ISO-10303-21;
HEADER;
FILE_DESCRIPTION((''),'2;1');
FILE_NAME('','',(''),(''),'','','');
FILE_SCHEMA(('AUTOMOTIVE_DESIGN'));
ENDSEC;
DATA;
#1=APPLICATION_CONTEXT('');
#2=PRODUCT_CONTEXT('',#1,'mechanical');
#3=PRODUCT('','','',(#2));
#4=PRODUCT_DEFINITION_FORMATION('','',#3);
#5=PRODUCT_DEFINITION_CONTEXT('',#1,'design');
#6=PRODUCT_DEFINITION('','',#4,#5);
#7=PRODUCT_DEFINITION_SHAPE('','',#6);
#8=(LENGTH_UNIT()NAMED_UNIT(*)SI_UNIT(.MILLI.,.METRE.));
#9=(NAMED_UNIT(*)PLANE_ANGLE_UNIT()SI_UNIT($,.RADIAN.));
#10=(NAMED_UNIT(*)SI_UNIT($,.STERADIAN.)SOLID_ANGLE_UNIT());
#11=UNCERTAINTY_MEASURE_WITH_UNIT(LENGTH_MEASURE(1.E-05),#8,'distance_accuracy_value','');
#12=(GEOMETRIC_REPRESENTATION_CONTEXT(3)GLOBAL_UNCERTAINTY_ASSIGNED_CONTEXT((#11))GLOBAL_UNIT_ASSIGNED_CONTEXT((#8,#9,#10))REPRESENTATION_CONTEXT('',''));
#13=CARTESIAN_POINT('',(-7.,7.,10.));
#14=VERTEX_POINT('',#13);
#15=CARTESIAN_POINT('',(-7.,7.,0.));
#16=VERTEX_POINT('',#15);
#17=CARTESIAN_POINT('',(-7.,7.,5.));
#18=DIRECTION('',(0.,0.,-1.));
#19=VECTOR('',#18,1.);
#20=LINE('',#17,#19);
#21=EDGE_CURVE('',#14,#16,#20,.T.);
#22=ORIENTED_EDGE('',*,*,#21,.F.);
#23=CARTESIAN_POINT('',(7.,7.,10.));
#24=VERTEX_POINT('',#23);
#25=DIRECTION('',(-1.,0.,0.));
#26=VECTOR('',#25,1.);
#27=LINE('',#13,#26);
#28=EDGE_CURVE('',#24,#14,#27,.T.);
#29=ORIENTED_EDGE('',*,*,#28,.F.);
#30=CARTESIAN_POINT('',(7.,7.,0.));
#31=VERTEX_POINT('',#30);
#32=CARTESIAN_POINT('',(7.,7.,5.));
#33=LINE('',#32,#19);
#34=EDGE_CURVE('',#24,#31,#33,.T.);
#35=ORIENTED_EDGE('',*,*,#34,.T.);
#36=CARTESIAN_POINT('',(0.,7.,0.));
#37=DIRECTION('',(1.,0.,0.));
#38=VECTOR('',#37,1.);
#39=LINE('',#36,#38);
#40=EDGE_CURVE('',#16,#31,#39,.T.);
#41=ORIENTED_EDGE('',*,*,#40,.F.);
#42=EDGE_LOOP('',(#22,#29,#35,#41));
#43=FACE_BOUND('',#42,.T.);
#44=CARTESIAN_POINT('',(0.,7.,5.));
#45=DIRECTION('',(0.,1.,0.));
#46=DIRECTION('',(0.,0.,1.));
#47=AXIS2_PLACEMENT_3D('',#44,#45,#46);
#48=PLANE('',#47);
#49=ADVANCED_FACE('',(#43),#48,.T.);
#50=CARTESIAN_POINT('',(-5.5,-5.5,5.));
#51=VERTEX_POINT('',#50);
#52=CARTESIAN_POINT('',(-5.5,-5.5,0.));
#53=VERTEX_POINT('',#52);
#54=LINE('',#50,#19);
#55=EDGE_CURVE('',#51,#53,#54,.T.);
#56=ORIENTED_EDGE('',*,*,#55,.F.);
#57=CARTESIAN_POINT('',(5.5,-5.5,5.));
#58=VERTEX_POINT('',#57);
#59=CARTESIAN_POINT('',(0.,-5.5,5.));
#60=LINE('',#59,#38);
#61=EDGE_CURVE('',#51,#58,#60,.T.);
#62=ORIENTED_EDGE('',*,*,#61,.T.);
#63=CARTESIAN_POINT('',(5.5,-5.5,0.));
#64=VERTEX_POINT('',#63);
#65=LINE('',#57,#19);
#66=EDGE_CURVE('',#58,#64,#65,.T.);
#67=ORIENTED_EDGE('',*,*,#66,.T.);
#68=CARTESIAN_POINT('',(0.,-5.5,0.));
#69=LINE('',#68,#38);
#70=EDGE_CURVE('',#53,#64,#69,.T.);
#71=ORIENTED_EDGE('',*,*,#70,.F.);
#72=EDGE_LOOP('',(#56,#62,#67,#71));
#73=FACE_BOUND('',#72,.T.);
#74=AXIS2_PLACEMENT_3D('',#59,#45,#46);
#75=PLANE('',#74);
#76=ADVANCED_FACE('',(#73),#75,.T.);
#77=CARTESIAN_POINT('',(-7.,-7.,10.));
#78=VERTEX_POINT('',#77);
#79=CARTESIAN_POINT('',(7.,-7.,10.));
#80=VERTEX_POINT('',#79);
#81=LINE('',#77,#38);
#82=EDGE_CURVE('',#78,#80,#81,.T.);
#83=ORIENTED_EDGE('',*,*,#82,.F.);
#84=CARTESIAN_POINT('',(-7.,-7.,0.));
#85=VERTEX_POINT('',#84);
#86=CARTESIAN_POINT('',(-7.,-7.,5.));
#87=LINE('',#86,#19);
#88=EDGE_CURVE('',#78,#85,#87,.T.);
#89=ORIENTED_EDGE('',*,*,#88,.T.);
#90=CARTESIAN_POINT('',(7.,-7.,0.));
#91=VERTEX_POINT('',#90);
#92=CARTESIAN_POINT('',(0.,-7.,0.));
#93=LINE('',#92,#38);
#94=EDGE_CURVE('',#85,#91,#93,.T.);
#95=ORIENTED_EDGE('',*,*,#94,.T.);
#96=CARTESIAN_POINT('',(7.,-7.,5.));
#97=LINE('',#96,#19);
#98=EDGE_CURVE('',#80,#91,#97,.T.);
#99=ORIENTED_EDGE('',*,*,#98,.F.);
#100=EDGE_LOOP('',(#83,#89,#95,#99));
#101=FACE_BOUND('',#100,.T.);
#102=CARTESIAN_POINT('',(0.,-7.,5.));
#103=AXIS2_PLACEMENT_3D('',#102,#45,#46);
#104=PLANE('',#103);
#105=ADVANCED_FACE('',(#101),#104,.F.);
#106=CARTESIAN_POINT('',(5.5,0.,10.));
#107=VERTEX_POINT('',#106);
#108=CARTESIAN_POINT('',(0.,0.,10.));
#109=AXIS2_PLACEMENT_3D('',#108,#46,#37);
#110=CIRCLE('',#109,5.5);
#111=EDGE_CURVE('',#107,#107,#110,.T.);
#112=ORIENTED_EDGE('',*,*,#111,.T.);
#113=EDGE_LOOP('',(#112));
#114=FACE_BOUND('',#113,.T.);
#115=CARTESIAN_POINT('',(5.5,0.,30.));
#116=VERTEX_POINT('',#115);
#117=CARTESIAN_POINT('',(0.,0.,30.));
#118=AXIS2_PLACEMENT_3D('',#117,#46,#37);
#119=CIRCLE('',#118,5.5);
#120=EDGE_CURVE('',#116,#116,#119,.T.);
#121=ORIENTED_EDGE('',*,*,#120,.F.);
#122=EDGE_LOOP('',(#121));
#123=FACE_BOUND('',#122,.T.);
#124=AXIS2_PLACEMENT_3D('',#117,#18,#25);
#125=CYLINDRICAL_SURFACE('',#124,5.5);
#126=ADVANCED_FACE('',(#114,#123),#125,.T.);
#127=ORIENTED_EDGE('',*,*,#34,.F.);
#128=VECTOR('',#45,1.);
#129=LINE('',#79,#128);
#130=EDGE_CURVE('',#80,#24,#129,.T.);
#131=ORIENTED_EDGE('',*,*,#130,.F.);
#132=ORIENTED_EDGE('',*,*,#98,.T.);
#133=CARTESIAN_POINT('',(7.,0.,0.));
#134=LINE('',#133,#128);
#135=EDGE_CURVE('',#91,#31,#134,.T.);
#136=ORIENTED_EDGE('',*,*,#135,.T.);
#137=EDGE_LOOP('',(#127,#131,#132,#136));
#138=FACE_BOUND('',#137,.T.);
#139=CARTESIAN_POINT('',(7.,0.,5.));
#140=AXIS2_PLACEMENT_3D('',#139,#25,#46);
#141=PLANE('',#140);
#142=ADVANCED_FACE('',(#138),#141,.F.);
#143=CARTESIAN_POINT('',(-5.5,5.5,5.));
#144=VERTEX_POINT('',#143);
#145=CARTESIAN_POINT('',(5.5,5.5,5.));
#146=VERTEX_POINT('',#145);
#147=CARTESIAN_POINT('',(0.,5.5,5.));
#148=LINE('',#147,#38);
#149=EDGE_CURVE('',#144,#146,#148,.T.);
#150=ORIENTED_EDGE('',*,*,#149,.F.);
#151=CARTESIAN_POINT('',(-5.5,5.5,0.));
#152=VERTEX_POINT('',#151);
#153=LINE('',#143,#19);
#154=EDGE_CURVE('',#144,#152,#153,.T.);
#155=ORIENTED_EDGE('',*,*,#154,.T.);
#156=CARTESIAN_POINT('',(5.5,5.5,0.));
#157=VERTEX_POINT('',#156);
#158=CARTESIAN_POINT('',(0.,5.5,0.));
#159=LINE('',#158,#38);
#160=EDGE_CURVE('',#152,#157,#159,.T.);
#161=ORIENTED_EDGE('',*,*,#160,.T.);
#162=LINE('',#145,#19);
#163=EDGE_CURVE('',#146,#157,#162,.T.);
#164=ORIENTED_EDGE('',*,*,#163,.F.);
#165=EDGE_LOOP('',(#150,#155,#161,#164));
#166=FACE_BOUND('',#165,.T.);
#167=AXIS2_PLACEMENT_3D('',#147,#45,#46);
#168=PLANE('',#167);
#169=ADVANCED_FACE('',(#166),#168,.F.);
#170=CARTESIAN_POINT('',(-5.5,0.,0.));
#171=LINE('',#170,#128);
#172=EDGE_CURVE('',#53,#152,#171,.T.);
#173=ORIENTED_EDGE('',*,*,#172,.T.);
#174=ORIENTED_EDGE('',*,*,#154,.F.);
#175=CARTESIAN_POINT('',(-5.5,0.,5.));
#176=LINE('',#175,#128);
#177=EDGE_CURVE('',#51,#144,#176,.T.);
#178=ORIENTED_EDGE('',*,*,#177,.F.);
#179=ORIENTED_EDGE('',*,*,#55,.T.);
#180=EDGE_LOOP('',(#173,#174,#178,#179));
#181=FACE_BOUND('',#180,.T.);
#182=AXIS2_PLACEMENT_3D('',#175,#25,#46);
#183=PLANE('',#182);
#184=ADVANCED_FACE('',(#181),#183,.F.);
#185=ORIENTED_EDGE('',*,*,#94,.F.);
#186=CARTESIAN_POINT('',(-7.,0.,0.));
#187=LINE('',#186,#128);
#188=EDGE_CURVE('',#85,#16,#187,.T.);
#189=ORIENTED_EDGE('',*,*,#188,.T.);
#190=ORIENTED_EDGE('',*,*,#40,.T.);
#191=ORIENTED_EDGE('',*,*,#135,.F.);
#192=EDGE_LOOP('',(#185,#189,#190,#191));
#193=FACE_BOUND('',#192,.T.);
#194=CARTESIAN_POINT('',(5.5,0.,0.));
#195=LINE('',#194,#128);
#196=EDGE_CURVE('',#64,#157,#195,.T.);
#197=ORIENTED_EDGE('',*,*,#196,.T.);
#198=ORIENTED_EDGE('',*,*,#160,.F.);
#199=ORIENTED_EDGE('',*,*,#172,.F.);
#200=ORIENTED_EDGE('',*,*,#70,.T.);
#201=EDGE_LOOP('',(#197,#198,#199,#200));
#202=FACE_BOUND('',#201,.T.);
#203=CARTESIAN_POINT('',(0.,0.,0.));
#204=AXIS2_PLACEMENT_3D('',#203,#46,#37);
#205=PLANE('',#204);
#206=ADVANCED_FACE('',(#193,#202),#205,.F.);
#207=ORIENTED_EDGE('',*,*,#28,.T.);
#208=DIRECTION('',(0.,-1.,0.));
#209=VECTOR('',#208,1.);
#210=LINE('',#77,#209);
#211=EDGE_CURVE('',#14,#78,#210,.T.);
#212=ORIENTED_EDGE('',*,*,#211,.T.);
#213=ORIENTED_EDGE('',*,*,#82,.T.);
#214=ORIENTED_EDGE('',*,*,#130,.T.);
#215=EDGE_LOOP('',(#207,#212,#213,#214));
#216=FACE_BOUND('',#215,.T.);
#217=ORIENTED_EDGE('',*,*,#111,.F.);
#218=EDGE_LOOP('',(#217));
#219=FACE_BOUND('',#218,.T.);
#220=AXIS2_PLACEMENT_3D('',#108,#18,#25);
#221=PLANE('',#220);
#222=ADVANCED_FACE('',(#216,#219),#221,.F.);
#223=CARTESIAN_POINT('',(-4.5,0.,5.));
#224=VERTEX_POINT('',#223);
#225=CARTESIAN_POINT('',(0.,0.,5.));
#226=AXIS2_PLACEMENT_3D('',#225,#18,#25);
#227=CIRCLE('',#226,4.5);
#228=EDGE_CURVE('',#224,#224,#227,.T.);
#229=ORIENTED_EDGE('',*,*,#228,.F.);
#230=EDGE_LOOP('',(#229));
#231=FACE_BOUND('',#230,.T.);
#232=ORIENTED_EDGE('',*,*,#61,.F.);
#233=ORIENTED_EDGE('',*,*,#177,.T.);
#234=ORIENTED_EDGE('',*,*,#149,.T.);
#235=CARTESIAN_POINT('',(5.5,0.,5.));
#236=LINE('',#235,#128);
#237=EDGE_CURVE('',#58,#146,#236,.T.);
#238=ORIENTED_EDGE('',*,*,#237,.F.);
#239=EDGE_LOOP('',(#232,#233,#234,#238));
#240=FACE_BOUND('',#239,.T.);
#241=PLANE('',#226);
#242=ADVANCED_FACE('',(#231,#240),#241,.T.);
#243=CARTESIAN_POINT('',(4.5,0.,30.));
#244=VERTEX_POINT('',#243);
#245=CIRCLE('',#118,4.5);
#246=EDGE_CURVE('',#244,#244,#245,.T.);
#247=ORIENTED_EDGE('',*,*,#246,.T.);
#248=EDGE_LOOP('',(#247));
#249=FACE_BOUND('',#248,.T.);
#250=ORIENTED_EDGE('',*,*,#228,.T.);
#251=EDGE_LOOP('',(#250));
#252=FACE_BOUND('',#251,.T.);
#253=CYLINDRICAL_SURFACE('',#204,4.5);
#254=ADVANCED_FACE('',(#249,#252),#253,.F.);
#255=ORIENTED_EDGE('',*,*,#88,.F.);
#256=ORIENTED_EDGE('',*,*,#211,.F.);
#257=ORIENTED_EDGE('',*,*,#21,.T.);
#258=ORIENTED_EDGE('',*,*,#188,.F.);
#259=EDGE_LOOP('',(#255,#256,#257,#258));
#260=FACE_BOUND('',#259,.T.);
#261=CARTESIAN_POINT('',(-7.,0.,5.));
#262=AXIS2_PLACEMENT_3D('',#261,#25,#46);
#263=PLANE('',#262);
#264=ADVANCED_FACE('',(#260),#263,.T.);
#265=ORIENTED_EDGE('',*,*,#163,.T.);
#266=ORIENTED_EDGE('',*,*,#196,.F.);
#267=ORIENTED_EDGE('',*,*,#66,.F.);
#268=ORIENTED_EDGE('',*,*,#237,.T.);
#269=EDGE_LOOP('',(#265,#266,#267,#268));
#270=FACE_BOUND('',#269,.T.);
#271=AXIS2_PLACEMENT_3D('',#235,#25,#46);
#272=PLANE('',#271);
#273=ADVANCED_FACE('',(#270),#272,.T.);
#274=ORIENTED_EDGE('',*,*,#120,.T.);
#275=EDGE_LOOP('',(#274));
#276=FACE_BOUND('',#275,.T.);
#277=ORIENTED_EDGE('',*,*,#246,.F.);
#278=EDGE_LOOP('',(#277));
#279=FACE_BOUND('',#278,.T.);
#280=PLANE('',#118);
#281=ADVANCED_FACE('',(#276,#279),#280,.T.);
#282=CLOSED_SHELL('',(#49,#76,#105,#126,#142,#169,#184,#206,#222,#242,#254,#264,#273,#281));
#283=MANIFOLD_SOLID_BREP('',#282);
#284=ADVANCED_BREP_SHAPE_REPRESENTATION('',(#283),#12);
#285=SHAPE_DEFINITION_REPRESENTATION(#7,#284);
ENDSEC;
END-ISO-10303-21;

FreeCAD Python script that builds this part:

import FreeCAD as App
import Part
import Sketcher

V = App.Vector

doc = App.newDocument("Part")
params = doc.addObject("Spreadsheet::Sheet", "Params")
for row, (alias, value) in enumerate([
    ("sketch1_width", "14 mm"),
    ("sketch1_width2", "11 mm"),
    ("pad1_length", "5 mm"),
    ("sketch2_width", "14 mm"),
    ("pad2_length", "5 mm"),
    ("sketch3_diameter", "11 mm"),
    ("pad3_length", "20 mm"),
    ("sketch4_diameter", "9 mm"),
], start=1):
    params.set(f"A{row}", alias)
    params.set(f"B{row}", "=" + value)
    params.setAlias(f"B{row}", alias)

body = doc.addObject("PartDesign::Body", "Body")

# Sketch on XY plane
sketch1 = body.newObject("Sketcher::SketchObject", "Sketch")
sketch1.AttachmentSupport = (doc.getObject("XY_Plane"), [""])
sketch1.MapMode = "FlatFace"
sketch1.addGeometry(Part.LineSegment(V(-7, 7, 0), V(-7, -7, 0)), False)
sketch1.addGeometry(Part.LineSegment(V(-7, -7, 0), V(7, -7, 0)), False)
sketch1.addGeometry(Part.LineSegment(V(7, -7, 0), V(7, 7, 0)), False)
sketch1.addGeometry(Part.LineSegment(V(7, 7, 0), V(-7, 7, 0)), False)
sketch1.addGeometry(Part.LineSegment(V(5.5, -5.5, 0), V(-5.5, -5.5, 0)), False)
sketch1.addGeometry(Part.LineSegment(V(-5.5, -5.5, 0), V(-5.5, 5.5, 0)), False)
sketch1.addGeometry(Part.LineSegment(V(-5.5, 5.5, 0), V(5.5, 5.5, 0)), False)
sketch1.addGeometry(Part.LineSegment(V(5.5, 5.5, 0), V(5.5, -5.5, 0)), False)
sketch1.addConstraint(Sketcher.Constraint("Coincident", 0, 2, 1, 1))
sketch1.addConstraint(Sketcher.Constraint("Coincident", 1, 2, 2, 1))
sketch1.addConstraint(Sketcher.Constraint("Coincident", 2, 2, 3, 1))
sketch1.addConstraint(Sketcher.Constraint("Coincident", 3, 2, 0, 1))
sketch1.addConstraint(Sketcher.Constraint("Coincident", 4, 2, 5, 1))
sketch1.addConstraint(Sketcher.Constraint("Coincident", 5, 2, 6, 1))
sketch1.addConstraint(Sketcher.Constraint("Coincident", 6, 2, 7, 1))
sketch1.addConstraint(Sketcher.Constraint("Coincident", 7, 2, 4, 1))
sketch1.addConstraint(Sketcher.Constraint("Vertical", 0))
sketch1.addConstraint(Sketcher.Constraint("Horizontal", 1))
sketch1.addConstraint(Sketcher.Constraint("Vertical", 2))
sketch1.addConstraint(Sketcher.Constraint("Horizontal", 3))
sketch1.addConstraint(Sketcher.Constraint("Horizontal", 4))
sketch1.addConstraint(Sketcher.Constraint("Vertical", 5))
sketch1.addConstraint(Sketcher.Constraint("Horizontal", 6))
sketch1.addConstraint(Sketcher.Constraint("Vertical", 7))
sketch1.addConstraint(Sketcher.Constraint("Symmetric", 0, 2, 2, 2, -1, 1))
sketch1.addConstraint(Sketcher.Constraint("Symmetric", 4, 2, 6, 2, -1, 1))
sketch1.addConstraint(Sketcher.Constraint("Equal", 3, 0))
sketch1.addConstraint(Sketcher.Constraint("Equal", 6, 5))
sketch1.addConstraint(Sketcher.Constraint("DistanceX", 1, 1, 1, 2, 14.0))
sketch1.addConstraint(Sketcher.Constraint("DistanceX", 4, 2, 4, 1, 11.0))
sketch1.setExpression("Constraints[20]", "Params.sketch1_width")
sketch1.setExpression("Constraints[21]", "Params.sketch1_width2")
pad1 = body.newObject("PartDesign::Pad", "Pad")
pad1.Profile = sketch1
pad1.setExpression("Length", "Params.pad1_length")

# Sketch on XY plane
sketch2 = body.newObject("Sketcher::SketchObject", "Sketch001")
sketch2.AttachmentSupport = (doc.getObject("XY_Plane"), [""])
sketch2.MapMode = "FlatFace"
sketch2.AttachmentOffset = App.Placement(V(0, 0, 5), App.Rotation())
sketch2.addGeometry(Part.LineSegment(V(-7, 7, 0), V(-7, -7, 0)), False)
sketch2.addGeometry(Part.LineSegment(V(-7, -7, 0), V(7, -7, 0)), False)
sketch2.addGeometry(Part.LineSegment(V(7, -7, 0), V(7, 7, 0)), False)
sketch2.addGeometry(Part.LineSegment(V(7, 7, 0), V(-7, 7, 0)), False)
sketch2.addConstraint(Sketcher.Constraint("Coincident", 0, 2, 1, 1))
sketch2.addConstraint(Sketcher.Constraint("Coincident", 1, 2, 2, 1))
sketch2.addConstraint(Sketcher.Constraint("Coincident", 2, 2, 3, 1))
sketch2.addConstraint(Sketcher.Constraint("Coincident", 3, 2, 0, 1))
sketch2.addConstraint(Sketcher.Constraint("Vertical", 0))
sketch2.addConstraint(Sketcher.Constraint("Horizontal", 1))
sketch2.addConstraint(Sketcher.Constraint("Vertical", 2))
sketch2.addConstraint(Sketcher.Constraint("Horizontal", 3))
sketch2.addConstraint(Sketcher.Constraint("Symmetric", 0, 2, 2, 2, -1, 1))
sketch2.addConstraint(Sketcher.Constraint("Equal", 3, 0))
sketch2.addConstraint(Sketcher.Constraint("DistanceX", 1, 1, 1, 2, 14.0))
sketch2.setExpression("Constraints[10]", "Params.sketch2_width")
pad2 = body.newObject("PartDesign::Pad", "Pad001")
pad2.Profile = sketch2
pad2.setExpression("Length", "Params.pad2_length")

# Sketch on XY plane
sketch3 = body.newObject("Sketcher::SketchObject", "Sketch002")
sketch3.AttachmentSupport = (doc.getObject("XY_Plane"), [""])
sketch3.MapMode = "FlatFace"
sketch3.AttachmentOffset = App.Placement(V(0, 0, 10), App.Rotation())
sketch3.addGeometry(Part.Circle(V(0, 0, 0), V(0, 0, 1), 5.5), False)
sketch3.addConstraint(Sketcher.Constraint("Coincident", 0, 3, -1, 1))
sketch3.addConstraint(Sketcher.Constraint("Diameter", 0, 11.0))
sketch3.setExpression("Constraints[1]", "Params.sketch3_diameter")
pad3 = body.newObject("PartDesign::Pad", "Pad002")
pad3.Profile = sketch3
pad3.setExpression("Length", "Params.pad3_length")

# Sketch on XY plane
sketch4 = body.newObject("Sketcher::SketchObject", "Sketch003")
sketch4.AttachmentSupport = (doc.getObject("XY_Plane"), [""])
sketch4.MapMode = "FlatFace"
sketch4.AttachmentOffset = App.Placement(V(0, 0, 30), App.Rotation())
sketch4.addGeometry(Part.Circle(V(0, 0, 0), V(0, 0, 1), 4.5), False)
sketch4.addConstraint(Sketcher.Constraint("Coincident", 0, 3, -1, 1))
sketch4.addConstraint(Sketcher.Constraint("Diameter", 0, 9.0))
sketch4.setExpression("Constraints[1]", "Params.sketch4_diameter")
pocket1 = body.newObject("PartDesign::Pocket", "Pocket")
pocket1.Profile = sketch4
pocket1.Type = "ThroughAll"

doc.recompute()
